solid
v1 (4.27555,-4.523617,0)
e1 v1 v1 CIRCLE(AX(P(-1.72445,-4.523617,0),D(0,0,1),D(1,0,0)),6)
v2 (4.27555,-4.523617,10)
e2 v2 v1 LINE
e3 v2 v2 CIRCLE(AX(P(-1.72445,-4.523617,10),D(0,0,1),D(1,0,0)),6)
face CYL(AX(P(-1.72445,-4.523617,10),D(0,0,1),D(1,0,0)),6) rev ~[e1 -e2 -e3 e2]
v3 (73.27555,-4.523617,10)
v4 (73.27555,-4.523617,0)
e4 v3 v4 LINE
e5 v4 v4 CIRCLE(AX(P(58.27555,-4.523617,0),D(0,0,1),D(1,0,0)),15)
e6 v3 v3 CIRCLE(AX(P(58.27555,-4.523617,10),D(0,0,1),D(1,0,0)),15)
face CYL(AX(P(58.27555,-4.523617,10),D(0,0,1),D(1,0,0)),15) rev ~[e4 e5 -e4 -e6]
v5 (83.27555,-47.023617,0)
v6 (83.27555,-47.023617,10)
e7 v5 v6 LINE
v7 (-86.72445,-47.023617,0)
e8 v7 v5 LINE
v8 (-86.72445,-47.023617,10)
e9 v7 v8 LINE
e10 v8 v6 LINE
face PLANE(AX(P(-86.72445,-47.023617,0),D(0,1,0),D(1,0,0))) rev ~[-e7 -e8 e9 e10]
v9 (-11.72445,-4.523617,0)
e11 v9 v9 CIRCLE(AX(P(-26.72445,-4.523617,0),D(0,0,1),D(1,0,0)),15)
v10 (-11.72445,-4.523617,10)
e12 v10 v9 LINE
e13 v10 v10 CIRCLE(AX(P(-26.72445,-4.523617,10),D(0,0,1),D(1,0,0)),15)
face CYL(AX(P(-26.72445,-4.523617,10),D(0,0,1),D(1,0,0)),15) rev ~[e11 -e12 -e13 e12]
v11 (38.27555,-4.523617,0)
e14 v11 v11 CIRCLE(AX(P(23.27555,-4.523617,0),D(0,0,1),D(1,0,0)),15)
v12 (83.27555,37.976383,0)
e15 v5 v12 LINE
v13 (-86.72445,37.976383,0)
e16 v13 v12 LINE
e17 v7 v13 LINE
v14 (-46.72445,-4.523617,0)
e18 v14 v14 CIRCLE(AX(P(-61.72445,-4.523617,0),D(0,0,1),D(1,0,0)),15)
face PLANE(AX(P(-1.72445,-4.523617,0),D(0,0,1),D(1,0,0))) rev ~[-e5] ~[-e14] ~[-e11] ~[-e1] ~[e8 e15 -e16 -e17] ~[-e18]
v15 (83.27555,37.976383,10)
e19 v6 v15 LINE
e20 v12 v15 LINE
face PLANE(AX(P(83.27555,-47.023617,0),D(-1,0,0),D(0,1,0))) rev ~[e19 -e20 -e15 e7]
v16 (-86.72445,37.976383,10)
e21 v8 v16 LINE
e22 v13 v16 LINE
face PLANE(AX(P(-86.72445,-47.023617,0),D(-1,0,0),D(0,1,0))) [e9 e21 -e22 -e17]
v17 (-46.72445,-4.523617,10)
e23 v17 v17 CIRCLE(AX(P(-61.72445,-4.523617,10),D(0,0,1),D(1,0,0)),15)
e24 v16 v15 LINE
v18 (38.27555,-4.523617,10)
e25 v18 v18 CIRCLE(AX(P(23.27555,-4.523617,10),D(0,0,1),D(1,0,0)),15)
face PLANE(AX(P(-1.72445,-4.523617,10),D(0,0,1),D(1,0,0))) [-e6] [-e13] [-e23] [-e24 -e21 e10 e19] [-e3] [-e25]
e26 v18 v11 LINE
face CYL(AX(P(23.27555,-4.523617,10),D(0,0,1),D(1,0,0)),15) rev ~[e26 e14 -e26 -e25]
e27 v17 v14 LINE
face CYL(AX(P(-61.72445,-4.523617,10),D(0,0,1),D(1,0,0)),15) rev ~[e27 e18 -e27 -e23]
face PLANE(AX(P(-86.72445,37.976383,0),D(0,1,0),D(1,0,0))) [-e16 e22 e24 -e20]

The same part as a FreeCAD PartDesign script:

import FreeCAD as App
import Part
import Sketcher


def add_polygon(sketch, points):
    """Adds a closed chain of lines whose ends are joined by coincident constraints."""
    first, n = sketch.GeometryCount, len(points)
    for a, b in zip(points, points[1:] + points[:1]):
        sketch.addGeometry(Part.LineSegment(App.Vector(*a, 0), App.Vector(*b, 0)), False)
    for i in range(n):
        sketch.addConstraint(Sketcher.Constraint("Coincident", first + i, 2, first + (i + 1) % n, 1))

doc = App.newDocument("Part")
params = doc.addObject("Spreadsheet::Sheet", "Params")
for row, (alias, value) in enumerate([
    ("sketch1_width", "170 mm"),
    ("sketch1_height", "85 mm"),
    ("pad1_length", "10 mm"),
    ("sketch2_diameter", "30 mm"),
    ("sketch2_diameter2", "12 mm"),
], start=1):
    params.set(f"A{row}", alias)
    params.set(f"B{row}", "=" + value)
    params.setAlias(f"B{row}", alias)

body = doc.addObject("PartDesign::Body", "Body")

sketch1 = body.newObject("Sketcher::SketchObject", "Sketch")
sketch1.AttachmentSupport = (doc.getObject("XY_Plane"), [""])
sketch1.MapMode = "FlatFace"
add_polygon(sketch1, [(-87, 38), (-87, -47), (83, -47), (83, 38)])
sketch1.addConstraint(Sketcher.Constraint("Vertical", 0))
sketch1.addConstraint(Sketcher.Constraint("Horizontal", 1))
sketch1.addConstraint(Sketcher.Constraint("Vertical", 2))
sketch1.addConstraint(Sketcher.Constraint("Horizontal", 3))
sketch1.addConstraint(Sketcher.Constraint("DistanceX", 1, 1, 1, 2, 170.0))
sketch1.addConstraint(Sketcher.Constraint("DistanceY", 0, 2, 0, 1, 85.0))
sketch1.addConstraint(Sketcher.Constraint("DistanceX", 0, 2, -1, 1, 86.72445))
sketch1.addConstraint(Sketcher.Constraint("DistanceY", 0, 2, -1, 1, 47.023617))
sketch1.setExpression("Constraints[8]", "Params.sketch1_width")
sketch1.setExpression("Constraints[9]", "Params.sketch1_height")
pad1 = body.newObject("PartDesign::Pad", "Pad")
pad1.Profile = sketch1
pad1.setExpression("Length", "Params.pad1_length")

sketch2 = body.newObject("Sketcher::SketchObject", "Sketch001")
sketch2.AttachmentSupport = (doc.getObject("XY_Plane"), [""])
sketch2.MapMode = "FlatFace"
sketch2.AttachmentOffset = App.Placement(App.Vector(0, 0, 10), App.Rotation())
sketch2.addGeometry(Part.Circle(App.Vector(-62, -5, 0), App.Vector(0, 0, 1), 15), False)
sketch2.addGeometry(Part.Circle(App.Vector(-27, -5, 0), App.Vector(0, 0, 1), 15), False)
sketch2.addGeometry(Part.Circle(App.Vector(-2, -5, 0), App.Vector(0, 0, 1), 6), False)
sketch2.addGeometry(Part.Circle(App.Vector(23, -5, 0), App.Vector(0, 0, 1), 15), False)
sketch2.addGeometry(Part.Circle(App.Vector(58, -5, 0), App.Vector(0, 0, 1), 15), False)
sketch2.addConstraint(Sketcher.Constraint("Equal", 0, 1))
sketch2.addConstraint(Sketcher.Constraint("Equal", 1, 3))
sketch2.addConstraint(Sketcher.Constraint("Equal", 3, 4))
sketch2.addConstraint(Sketcher.Constraint("Horizontal", 0, 3, 1, 3))
sketch2.addConstraint(Sketcher.Constraint("Horizontal", 1, 3, 2, 3))
sketch2.addConstraint(Sketcher.Constraint("Horizontal", 2, 3, 3, 3))
sketch2.addConstraint(Sketcher.Constraint("Horizontal", 3, 3, 4, 3))
sketch2.addConstraint(Sketcher.Constraint("Diameter", 0, 30.0))
sketch2.addConstraint(Sketcher.Constraint("Diameter", 2, 12.0))
sketch2.addConstraint(Sketcher.Constraint("DistanceX", 0, 3, 1, 3, 35.0))
sketch2.addConstraint(Sketcher.Constraint("DistanceX", 1, 3, 2, 3, 25.0))
sketch2.addConstraint(Sketcher.Constraint("DistanceX", 2, 3, 3, 3, 25.0))
sketch2.addConstraint(Sketcher.Constraint("DistanceX", 3, 3, 4, 3, 35.0))
sketch2.addConstraint(Sketcher.Constraint("DistanceX", 0, 3, -1, 1, 61.72445))
sketch2.addConstraint(Sketcher.Constraint("DistanceY", 0, 3, -1, 1, 4.523617))
sketch2.setExpression("Constraints[7]", "Params.sketch2_diameter")
sketch2.setExpression("Constraints[8]", "Params.sketch2_diameter2")
pocket1 = body.newObject("PartDesign::Pocket", "Pocket")
pocket1.Profile = sketch2
pocket1.Type = "ThroughAll"

doc.recompute()
